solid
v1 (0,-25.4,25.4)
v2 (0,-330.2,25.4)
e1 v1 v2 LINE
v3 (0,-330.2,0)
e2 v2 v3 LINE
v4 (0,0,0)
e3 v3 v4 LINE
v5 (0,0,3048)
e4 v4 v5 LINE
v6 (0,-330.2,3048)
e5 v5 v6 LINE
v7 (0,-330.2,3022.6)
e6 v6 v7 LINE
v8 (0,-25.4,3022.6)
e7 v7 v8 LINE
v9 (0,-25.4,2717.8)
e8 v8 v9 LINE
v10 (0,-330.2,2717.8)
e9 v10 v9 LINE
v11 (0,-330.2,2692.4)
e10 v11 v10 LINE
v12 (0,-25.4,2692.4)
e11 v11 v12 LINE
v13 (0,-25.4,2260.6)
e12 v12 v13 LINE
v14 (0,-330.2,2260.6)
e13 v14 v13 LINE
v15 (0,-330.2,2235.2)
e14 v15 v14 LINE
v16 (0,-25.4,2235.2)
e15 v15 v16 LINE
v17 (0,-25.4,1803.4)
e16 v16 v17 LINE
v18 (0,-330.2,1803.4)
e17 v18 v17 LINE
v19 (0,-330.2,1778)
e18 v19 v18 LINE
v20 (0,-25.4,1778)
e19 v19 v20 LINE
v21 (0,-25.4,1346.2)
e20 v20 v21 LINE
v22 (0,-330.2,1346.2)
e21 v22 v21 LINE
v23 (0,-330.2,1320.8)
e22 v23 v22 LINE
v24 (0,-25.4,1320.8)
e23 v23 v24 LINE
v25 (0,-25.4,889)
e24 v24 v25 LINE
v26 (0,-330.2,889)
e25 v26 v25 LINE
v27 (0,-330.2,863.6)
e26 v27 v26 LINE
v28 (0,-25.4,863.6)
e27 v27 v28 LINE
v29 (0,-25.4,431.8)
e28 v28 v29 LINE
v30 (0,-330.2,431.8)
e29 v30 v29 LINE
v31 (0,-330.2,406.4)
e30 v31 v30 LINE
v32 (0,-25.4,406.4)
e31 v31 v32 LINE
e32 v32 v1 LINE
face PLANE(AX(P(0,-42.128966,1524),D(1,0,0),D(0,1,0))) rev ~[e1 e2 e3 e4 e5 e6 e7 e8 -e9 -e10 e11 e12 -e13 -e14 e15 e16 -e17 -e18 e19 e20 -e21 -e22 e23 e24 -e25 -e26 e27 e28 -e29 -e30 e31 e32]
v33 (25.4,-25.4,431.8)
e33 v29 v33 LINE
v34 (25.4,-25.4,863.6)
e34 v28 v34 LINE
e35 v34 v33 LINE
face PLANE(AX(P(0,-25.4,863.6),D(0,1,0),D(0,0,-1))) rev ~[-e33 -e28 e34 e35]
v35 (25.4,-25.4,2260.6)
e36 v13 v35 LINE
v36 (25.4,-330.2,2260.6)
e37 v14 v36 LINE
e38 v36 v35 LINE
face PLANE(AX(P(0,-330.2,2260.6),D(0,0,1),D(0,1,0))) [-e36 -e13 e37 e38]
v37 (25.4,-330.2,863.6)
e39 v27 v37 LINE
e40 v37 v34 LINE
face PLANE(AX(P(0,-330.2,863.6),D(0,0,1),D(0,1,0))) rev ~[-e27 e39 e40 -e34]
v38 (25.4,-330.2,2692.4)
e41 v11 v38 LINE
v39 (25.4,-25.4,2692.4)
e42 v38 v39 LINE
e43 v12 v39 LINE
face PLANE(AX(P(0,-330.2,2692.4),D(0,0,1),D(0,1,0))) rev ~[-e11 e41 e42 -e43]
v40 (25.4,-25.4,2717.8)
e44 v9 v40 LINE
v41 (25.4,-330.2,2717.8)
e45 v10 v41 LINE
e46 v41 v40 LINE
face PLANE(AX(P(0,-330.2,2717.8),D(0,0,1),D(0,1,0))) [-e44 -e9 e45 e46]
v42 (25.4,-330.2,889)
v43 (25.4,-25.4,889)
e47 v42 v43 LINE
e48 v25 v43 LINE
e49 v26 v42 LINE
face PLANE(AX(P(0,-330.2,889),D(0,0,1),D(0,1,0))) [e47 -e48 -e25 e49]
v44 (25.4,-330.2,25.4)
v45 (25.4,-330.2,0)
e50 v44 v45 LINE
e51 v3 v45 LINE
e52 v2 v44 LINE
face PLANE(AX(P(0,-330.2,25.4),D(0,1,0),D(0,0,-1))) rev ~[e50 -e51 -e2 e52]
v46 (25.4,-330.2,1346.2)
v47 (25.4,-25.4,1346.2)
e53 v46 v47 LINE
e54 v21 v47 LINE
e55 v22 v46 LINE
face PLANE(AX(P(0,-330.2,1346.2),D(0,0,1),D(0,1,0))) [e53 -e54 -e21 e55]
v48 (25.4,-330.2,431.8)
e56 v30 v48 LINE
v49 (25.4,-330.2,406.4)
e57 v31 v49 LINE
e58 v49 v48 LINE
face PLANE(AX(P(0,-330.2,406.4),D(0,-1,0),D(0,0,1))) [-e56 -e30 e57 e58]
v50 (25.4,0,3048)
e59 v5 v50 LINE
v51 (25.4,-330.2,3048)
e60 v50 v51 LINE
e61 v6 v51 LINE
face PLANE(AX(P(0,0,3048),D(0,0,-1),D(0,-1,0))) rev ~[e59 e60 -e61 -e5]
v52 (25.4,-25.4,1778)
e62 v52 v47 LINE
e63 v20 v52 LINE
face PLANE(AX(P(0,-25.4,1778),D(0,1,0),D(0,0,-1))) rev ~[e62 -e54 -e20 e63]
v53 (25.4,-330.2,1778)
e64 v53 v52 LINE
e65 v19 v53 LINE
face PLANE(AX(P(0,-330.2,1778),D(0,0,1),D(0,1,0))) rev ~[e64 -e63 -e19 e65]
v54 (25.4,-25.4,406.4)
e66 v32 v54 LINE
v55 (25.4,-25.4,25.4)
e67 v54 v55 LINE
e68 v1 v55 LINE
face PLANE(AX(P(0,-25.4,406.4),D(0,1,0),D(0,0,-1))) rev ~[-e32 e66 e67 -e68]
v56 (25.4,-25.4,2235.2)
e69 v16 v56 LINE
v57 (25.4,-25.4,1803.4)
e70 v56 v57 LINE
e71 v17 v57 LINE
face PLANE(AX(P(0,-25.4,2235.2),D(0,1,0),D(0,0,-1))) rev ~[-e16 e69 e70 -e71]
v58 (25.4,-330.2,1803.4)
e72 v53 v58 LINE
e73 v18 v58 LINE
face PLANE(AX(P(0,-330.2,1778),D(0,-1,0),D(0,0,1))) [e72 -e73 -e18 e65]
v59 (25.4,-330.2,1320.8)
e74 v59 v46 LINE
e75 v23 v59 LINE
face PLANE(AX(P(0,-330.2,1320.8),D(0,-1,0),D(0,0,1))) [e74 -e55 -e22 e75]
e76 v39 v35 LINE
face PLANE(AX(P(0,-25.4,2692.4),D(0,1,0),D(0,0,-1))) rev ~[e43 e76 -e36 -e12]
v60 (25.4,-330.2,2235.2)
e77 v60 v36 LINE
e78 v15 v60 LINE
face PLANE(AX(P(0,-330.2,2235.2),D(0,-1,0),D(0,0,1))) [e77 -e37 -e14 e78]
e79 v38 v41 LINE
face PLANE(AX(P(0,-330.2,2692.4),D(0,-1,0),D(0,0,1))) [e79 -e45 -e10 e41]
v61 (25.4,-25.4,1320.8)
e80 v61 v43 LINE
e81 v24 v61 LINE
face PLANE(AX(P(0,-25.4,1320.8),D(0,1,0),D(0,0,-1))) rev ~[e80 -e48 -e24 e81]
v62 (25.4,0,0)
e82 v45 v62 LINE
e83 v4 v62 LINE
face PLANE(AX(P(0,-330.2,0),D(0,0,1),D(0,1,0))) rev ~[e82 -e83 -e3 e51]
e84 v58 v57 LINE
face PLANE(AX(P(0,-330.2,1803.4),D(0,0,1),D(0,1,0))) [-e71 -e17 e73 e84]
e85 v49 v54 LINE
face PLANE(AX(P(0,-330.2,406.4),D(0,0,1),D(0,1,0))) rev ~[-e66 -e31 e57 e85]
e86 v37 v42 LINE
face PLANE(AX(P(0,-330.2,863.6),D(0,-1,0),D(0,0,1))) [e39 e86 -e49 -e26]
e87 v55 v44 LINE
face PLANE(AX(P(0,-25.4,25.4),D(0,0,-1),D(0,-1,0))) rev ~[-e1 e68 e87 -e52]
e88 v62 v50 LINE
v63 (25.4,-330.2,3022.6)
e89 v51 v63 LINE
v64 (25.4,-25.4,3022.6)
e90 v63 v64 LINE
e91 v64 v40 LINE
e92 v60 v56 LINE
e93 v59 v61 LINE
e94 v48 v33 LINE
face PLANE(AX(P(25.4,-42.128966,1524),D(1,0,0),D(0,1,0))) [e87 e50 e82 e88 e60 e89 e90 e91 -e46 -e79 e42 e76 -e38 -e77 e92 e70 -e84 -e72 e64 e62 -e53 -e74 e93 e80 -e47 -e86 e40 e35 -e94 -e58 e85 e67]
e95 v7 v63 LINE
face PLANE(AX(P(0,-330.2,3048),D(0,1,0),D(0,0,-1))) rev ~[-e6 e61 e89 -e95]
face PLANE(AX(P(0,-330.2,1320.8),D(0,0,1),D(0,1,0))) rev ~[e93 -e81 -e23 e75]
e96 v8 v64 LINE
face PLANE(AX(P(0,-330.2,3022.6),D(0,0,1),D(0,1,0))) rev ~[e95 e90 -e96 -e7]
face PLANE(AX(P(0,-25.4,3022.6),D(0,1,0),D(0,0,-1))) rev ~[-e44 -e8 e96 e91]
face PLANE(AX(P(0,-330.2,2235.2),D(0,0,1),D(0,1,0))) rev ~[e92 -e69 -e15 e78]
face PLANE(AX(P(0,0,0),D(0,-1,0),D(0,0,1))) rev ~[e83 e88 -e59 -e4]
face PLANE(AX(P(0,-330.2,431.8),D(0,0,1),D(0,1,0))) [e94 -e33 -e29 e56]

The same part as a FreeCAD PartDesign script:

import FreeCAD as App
import Part
import Sketcher
from FreeCAD import Vector
Q = App.Units.Quantity

doc = App.newDocument("Part")
params = doc.addObject("Spreadsheet::Sheet", "Params")
for row, (alias, value) in enumerate([
    ("sketch1_width", "13 in"),
    ("sketch1_width2", "12 in"),
    ("sketch1_height", "1 in"),
    ("sketch1_height2", "17 in"),
    ("sketch1_height3", "15 in"),
    ("pad1_length", "1 in"),
], start=1):
    params.set(f"A{row}", alias)
    params.set(f"B{row}", "=" + value)
    params.setAlias(f"B{row}", alias)

body = doc.addObject("PartDesign::Body", "Body")

sketch1 = body.newObject("Sketcher::SketchObject", "Sketch")
sketch1.AttachmentSupport = (doc.getObject("YZ_Plane"), [""])
sketch1.MapMode = "FlatFace"
sketch1.addGeometry([
    Part.LineSegment(Vector(0, 3048, 0), Vector(-330, 3048, 0)),
    Part.LineSegment(Vector(-330, 3048, 0), Vector(-330, 3023, 0)),
    Part.LineSegment(Vector(-330, 3023, 0), Vector(-25, 3023, 0)),
    Part.LineSegment(Vector(-25, 3023, 0), Vector(-25, 2718, 0)),
    Part.LineSegment(Vector(-25, 2718, 0), Vector(-330, 2718, 0)),
    Part.LineSegment(Vector(-330, 2718, 0), Vector(-330, 2692, 0)),
    Part.LineSegment(Vector(-330, 2692, 0), Vector(-25, 2692, 0)),
    Part.LineSegment(Vector(-25, 2692, 0), Vector(-25, 2261, 0)),
    Part.LineSegment(Vector(-25, 2261, 0), Vector(-330, 2261, 0)),
    Part.LineSegment(Vector(-330, 2261, 0), Vector(-330, 2235, 0)),
    Part.LineSegment(Vector(-330, 2235, 0), Vector(-25, 2235, 0)),
    Part.LineSegment(Vector(-25, 2235, 0), Vector(-25, 1803, 0)),
    Part.LineSegment(Vector(-25, 1803, 0), Vector(-330, 1803, 0)),
    Part.LineSegment(Vector(-330, 1803, 0), Vector(-330, 1778, 0)),
    Part.LineSegment(Vector(-330, 1778, 0), Vector(-25, 1778, 0)),
    Part.LineSegment(Vector(-25, 1778, 0), Vector(-25, 1346, 0)),
    Part.LineSegment(Vector(-25, 1346, 0), Vector(-330, 1346, 0)),
    Part.LineSegment(Vector(-330, 1346, 0), Vector(-330, 1321, 0)),
    Part.LineSegment(Vector(-330, 1321, 0), Vector(-25, 1321, 0)),
    Part.LineSegment(Vector(-25, 1321, 0), Vector(-25, 889, 0)),
    Part.LineSegment(Vector(-25, 889, 0), Vector(-330, 889, 0)),
    Part.LineSegment(Vector(-330, 889, 0), Vector(-330, 864, 0)),
    Part.LineSegment(Vector(-330, 864, 0), Vector(-25, 864, 0)),
    Part.LineSegment(Vector(-25, 864, 0), Vector(-25, 432, 0)),
    Part.LineSegment(Vector(-25, 432, 0), Vector(-330, 432, 0)),
    Part.LineSegment(Vector(-330, 432, 0), Vector(-330, 406, 0)),
    Part.LineSegment(Vector(-330, 406, 0), Vector(-25, 406, 0)),
    Part.LineSegment(Vector(-25, 406, 0), Vector(-25, 25, 0)),
    Part.LineSegment(Vector(-25, 25, 0), Vector(-330, 25, 0)),
    Part.LineSegment(Vector(-330, 25, 0), Vector(-330, 0, 0)),
    Part.LineSegment(Vector(-330, 0, 0), Vector(0, 0, 0)),
    Part.LineSegment(Vector(0, 0, 0), Vector(0, 3048, 0)),
], False)
sketch1.addConstraint([
    Sketcher.Constraint("Coincident", 0, 2, 1, 1),
    Sketcher.Constraint("Coincident", 1, 2, 2, 1),
    Sketcher.Constraint("Coincident", 2, 2, 3, 1),
    Sketcher.Constraint("Coincident", 3, 2, 4, 1),
    Sketcher.Constraint("Coincident", 4, 2, 5, 1),
    Sketcher.Constraint("Coincident", 5, 2, 6, 1),
    Sketcher.Constraint("Coincident", 6, 2, 7, 1),
    Sketcher.Constraint("Coincident", 7, 2, 8, 1),
    Sketcher.Constraint("Coincident", 8, 2, 9, 1),
    Sketcher.Constraint("Coincident", 9, 2, 10, 1),
    Sketcher.Constraint("Coincident", 10, 2, 11, 1),
    Sketcher.Constraint("Coincident", 11, 2, 12, 1),
    Sketcher.Constraint("Coincident", 12, 2, 13, 1),
    Sketcher.Constraint("Coincident", 13, 2, 14, 1),
    Sketcher.Constraint("Coincident", 14, 2, 15, 1),
    Sketcher.Constraint("Coincident", 15, 2, 16, 1),
    Sketcher.Constraint("Coincident", 16, 2, 17, 1),
    Sketcher.Constraint("Coincident", 17, 2, 18, 1),
    Sketcher.Constraint("Coincident", 18, 2, 19, 1),
    Sketcher.Constraint("Coincident", 19, 2, 20, 1),
    Sketcher.Constraint("Coincident", 20, 2, 21, 1),
    Sketcher.Constraint("Coincident", 21, 2, 22, 1),
    Sketcher.Constraint("Coincident", 22, 2, 23, 1),
    Sketcher.Constraint("Coincident", 23, 2, 24, 1),
    Sketcher.Constraint("Coincident", 24, 2, 25, 1),
    Sketcher.Constraint("Coincident", 25, 2, 26, 1),
    Sketcher.Constraint("Coincident", 26, 2, 27, 1),
    Sketcher.Constraint("Coincident", 27, 2, 28, 1),
    Sketcher.Constraint("Coincident", 28, 2, 29, 1),
    Sketcher.Constraint("Coincident", 29, 2, 30, 1),
    Sketcher.Constraint("Coincident", 30, 2, 31, 1),
    Sketcher.Constraint("Coincident", 31, 2, 0, 1),
    Sketcher.Constraint("Horizontal", 0),
    Sketcher.Constraint("Vertical", 1),
    Sketcher.Constraint("Horizontal", 2),
    Sketcher.Constraint("Vertical", 3),
    Sketcher.Constraint("Horizontal", 4),
    Sketcher.Constraint("Vertical", 5),
    Sketcher.Constraint("Horizontal", 6),
    Sketcher.Constraint("Vertical", 7),
    Sketcher.Constraint("Horizontal", 8),
    Sketcher.Constraint("Vertical", 9),
    Sketcher.Constraint("Horizontal", 10),
    Sketcher.Constraint("Vertical", 11),
    Sketcher.Constraint("Horizontal", 12),
    Sketcher.Constraint("Vertical", 13),
    Sketcher.Constraint("Horizontal", 14),
    Sketcher.Constraint("Vertical", 15),
    Sketcher.Constraint("Horizontal", 16),
    Sketcher.Constraint("Vertical", 17),
    Sketcher.Constraint("Horizontal", 18),
    Sketcher.Constraint("Vertical", 19),
    Sketcher.Constraint("Horizontal", 20),
    Sketcher.Constraint("Vertical", 21),
    Sketcher.Constraint("Horizontal", 22),
    Sketcher.Constraint("Vertical", 23),
    Sketcher.Constraint("Horizontal", 24),
    Sketcher.Constraint("Vertical", 25),
    Sketcher.Constraint("Horizontal", 26),
    Sketcher.Constraint("Vertical", 27),
    Sketcher.Constraint("Horizontal", 28),
    Sketcher.Constraint("Vertical", 29),
    Sketcher.Constraint("Horizontal", 30),
    Sketcher.Constraint("Vertical", 31),
    Sketcher.Constraint("Coincident", 30, 2, -1, 1),
    Sketcher.Constraint("Vertical", 1, 2, 4, 2),
    Sketcher.Constraint("Vertical", 3, 2, 6, 2),
    Sketcher.Constraint("Vertical", 5, 2, 8, 2),
    Sketcher.Constraint("Vertical", 7, 2, 10, 2),
    Sketcher.Constraint("Vertical", 9, 2, 12, 2),
    Sketcher.Constraint("Vertical", 11, 2, 14, 2),
    Sketcher.Constraint("Vertical", 13, 2, 16, 2),
    Sketcher.Constraint("Vertical", 15, 2, 18, 2),
    Sketcher.Constraint("Vertical", 17, 2, 20, 2),
    Sketcher.Constraint("Vertical", 19, 2, 22, 2),
    Sketcher.Constraint("Vertical", 21, 2, 24, 2),
    Sketcher.Constraint("Vertical", 23, 2, 26, 2),
    Sketcher.Constraint("Vertical", 25, 2, 28, 2),
    Sketcher.Constraint("Equal", 28, 3),
    Sketcher.Constraint("Equal", 1, 5),
    Sketcher.Constraint("Equal", 5, 9),
    Sketcher.Constraint("Equal", 7, 11),
    Sketcher.Constraint("Equal", 9, 13),
    Sketcher.Constraint("Equal", 11, 15),
    Sketcher.Constraint("Equal", 13, 17),
    Sketcher.Constraint("Equal", 15, 19),
    Sketcher.Constraint("Equal", 17, 21),
    Sketcher.Constraint("Equal", 19, 23),
    Sketcher.Constraint("Equal", 21, 25),
    Sketcher.Constraint("Equal", 25, 29),
    Sketcher.Constraint("DistanceX", 0, 2, 0, 1, Q("13 in")),
    Sketcher.Constraint("DistanceX", 2, 1, 2, 2, Q("12 in")),
    Sketcher.Constraint("DistanceY", 1, 2, 1, 1, Q("1 in")),
    Sketcher.Constraint("DistanceY", 7, 2, 7, 1, Q("17 in")),
    Sketcher.Constraint("DistanceY", 27, 2, 27, 1, Q("15 in")),
])
sketch1.setExpression("Constraints[90]", "Params.sketch1_width")
sketch1.setExpression("Constraints[91]", "Params.sketch1_width2")
sketch1.setExpression("Constraints[92]", "Params.sketch1_height")
sketch1.setExpression("Constraints[93]", "Params.sketch1_height2")
sketch1.setExpression("Constraints[94]", "Params.sketch1_height3")
pad1 = body.newObject("PartDesign::Pad", "Pad")
pad1.Profile = sketch1
pad1.setExpression("Length", "Params.pad1_length")

doc.recompute()
